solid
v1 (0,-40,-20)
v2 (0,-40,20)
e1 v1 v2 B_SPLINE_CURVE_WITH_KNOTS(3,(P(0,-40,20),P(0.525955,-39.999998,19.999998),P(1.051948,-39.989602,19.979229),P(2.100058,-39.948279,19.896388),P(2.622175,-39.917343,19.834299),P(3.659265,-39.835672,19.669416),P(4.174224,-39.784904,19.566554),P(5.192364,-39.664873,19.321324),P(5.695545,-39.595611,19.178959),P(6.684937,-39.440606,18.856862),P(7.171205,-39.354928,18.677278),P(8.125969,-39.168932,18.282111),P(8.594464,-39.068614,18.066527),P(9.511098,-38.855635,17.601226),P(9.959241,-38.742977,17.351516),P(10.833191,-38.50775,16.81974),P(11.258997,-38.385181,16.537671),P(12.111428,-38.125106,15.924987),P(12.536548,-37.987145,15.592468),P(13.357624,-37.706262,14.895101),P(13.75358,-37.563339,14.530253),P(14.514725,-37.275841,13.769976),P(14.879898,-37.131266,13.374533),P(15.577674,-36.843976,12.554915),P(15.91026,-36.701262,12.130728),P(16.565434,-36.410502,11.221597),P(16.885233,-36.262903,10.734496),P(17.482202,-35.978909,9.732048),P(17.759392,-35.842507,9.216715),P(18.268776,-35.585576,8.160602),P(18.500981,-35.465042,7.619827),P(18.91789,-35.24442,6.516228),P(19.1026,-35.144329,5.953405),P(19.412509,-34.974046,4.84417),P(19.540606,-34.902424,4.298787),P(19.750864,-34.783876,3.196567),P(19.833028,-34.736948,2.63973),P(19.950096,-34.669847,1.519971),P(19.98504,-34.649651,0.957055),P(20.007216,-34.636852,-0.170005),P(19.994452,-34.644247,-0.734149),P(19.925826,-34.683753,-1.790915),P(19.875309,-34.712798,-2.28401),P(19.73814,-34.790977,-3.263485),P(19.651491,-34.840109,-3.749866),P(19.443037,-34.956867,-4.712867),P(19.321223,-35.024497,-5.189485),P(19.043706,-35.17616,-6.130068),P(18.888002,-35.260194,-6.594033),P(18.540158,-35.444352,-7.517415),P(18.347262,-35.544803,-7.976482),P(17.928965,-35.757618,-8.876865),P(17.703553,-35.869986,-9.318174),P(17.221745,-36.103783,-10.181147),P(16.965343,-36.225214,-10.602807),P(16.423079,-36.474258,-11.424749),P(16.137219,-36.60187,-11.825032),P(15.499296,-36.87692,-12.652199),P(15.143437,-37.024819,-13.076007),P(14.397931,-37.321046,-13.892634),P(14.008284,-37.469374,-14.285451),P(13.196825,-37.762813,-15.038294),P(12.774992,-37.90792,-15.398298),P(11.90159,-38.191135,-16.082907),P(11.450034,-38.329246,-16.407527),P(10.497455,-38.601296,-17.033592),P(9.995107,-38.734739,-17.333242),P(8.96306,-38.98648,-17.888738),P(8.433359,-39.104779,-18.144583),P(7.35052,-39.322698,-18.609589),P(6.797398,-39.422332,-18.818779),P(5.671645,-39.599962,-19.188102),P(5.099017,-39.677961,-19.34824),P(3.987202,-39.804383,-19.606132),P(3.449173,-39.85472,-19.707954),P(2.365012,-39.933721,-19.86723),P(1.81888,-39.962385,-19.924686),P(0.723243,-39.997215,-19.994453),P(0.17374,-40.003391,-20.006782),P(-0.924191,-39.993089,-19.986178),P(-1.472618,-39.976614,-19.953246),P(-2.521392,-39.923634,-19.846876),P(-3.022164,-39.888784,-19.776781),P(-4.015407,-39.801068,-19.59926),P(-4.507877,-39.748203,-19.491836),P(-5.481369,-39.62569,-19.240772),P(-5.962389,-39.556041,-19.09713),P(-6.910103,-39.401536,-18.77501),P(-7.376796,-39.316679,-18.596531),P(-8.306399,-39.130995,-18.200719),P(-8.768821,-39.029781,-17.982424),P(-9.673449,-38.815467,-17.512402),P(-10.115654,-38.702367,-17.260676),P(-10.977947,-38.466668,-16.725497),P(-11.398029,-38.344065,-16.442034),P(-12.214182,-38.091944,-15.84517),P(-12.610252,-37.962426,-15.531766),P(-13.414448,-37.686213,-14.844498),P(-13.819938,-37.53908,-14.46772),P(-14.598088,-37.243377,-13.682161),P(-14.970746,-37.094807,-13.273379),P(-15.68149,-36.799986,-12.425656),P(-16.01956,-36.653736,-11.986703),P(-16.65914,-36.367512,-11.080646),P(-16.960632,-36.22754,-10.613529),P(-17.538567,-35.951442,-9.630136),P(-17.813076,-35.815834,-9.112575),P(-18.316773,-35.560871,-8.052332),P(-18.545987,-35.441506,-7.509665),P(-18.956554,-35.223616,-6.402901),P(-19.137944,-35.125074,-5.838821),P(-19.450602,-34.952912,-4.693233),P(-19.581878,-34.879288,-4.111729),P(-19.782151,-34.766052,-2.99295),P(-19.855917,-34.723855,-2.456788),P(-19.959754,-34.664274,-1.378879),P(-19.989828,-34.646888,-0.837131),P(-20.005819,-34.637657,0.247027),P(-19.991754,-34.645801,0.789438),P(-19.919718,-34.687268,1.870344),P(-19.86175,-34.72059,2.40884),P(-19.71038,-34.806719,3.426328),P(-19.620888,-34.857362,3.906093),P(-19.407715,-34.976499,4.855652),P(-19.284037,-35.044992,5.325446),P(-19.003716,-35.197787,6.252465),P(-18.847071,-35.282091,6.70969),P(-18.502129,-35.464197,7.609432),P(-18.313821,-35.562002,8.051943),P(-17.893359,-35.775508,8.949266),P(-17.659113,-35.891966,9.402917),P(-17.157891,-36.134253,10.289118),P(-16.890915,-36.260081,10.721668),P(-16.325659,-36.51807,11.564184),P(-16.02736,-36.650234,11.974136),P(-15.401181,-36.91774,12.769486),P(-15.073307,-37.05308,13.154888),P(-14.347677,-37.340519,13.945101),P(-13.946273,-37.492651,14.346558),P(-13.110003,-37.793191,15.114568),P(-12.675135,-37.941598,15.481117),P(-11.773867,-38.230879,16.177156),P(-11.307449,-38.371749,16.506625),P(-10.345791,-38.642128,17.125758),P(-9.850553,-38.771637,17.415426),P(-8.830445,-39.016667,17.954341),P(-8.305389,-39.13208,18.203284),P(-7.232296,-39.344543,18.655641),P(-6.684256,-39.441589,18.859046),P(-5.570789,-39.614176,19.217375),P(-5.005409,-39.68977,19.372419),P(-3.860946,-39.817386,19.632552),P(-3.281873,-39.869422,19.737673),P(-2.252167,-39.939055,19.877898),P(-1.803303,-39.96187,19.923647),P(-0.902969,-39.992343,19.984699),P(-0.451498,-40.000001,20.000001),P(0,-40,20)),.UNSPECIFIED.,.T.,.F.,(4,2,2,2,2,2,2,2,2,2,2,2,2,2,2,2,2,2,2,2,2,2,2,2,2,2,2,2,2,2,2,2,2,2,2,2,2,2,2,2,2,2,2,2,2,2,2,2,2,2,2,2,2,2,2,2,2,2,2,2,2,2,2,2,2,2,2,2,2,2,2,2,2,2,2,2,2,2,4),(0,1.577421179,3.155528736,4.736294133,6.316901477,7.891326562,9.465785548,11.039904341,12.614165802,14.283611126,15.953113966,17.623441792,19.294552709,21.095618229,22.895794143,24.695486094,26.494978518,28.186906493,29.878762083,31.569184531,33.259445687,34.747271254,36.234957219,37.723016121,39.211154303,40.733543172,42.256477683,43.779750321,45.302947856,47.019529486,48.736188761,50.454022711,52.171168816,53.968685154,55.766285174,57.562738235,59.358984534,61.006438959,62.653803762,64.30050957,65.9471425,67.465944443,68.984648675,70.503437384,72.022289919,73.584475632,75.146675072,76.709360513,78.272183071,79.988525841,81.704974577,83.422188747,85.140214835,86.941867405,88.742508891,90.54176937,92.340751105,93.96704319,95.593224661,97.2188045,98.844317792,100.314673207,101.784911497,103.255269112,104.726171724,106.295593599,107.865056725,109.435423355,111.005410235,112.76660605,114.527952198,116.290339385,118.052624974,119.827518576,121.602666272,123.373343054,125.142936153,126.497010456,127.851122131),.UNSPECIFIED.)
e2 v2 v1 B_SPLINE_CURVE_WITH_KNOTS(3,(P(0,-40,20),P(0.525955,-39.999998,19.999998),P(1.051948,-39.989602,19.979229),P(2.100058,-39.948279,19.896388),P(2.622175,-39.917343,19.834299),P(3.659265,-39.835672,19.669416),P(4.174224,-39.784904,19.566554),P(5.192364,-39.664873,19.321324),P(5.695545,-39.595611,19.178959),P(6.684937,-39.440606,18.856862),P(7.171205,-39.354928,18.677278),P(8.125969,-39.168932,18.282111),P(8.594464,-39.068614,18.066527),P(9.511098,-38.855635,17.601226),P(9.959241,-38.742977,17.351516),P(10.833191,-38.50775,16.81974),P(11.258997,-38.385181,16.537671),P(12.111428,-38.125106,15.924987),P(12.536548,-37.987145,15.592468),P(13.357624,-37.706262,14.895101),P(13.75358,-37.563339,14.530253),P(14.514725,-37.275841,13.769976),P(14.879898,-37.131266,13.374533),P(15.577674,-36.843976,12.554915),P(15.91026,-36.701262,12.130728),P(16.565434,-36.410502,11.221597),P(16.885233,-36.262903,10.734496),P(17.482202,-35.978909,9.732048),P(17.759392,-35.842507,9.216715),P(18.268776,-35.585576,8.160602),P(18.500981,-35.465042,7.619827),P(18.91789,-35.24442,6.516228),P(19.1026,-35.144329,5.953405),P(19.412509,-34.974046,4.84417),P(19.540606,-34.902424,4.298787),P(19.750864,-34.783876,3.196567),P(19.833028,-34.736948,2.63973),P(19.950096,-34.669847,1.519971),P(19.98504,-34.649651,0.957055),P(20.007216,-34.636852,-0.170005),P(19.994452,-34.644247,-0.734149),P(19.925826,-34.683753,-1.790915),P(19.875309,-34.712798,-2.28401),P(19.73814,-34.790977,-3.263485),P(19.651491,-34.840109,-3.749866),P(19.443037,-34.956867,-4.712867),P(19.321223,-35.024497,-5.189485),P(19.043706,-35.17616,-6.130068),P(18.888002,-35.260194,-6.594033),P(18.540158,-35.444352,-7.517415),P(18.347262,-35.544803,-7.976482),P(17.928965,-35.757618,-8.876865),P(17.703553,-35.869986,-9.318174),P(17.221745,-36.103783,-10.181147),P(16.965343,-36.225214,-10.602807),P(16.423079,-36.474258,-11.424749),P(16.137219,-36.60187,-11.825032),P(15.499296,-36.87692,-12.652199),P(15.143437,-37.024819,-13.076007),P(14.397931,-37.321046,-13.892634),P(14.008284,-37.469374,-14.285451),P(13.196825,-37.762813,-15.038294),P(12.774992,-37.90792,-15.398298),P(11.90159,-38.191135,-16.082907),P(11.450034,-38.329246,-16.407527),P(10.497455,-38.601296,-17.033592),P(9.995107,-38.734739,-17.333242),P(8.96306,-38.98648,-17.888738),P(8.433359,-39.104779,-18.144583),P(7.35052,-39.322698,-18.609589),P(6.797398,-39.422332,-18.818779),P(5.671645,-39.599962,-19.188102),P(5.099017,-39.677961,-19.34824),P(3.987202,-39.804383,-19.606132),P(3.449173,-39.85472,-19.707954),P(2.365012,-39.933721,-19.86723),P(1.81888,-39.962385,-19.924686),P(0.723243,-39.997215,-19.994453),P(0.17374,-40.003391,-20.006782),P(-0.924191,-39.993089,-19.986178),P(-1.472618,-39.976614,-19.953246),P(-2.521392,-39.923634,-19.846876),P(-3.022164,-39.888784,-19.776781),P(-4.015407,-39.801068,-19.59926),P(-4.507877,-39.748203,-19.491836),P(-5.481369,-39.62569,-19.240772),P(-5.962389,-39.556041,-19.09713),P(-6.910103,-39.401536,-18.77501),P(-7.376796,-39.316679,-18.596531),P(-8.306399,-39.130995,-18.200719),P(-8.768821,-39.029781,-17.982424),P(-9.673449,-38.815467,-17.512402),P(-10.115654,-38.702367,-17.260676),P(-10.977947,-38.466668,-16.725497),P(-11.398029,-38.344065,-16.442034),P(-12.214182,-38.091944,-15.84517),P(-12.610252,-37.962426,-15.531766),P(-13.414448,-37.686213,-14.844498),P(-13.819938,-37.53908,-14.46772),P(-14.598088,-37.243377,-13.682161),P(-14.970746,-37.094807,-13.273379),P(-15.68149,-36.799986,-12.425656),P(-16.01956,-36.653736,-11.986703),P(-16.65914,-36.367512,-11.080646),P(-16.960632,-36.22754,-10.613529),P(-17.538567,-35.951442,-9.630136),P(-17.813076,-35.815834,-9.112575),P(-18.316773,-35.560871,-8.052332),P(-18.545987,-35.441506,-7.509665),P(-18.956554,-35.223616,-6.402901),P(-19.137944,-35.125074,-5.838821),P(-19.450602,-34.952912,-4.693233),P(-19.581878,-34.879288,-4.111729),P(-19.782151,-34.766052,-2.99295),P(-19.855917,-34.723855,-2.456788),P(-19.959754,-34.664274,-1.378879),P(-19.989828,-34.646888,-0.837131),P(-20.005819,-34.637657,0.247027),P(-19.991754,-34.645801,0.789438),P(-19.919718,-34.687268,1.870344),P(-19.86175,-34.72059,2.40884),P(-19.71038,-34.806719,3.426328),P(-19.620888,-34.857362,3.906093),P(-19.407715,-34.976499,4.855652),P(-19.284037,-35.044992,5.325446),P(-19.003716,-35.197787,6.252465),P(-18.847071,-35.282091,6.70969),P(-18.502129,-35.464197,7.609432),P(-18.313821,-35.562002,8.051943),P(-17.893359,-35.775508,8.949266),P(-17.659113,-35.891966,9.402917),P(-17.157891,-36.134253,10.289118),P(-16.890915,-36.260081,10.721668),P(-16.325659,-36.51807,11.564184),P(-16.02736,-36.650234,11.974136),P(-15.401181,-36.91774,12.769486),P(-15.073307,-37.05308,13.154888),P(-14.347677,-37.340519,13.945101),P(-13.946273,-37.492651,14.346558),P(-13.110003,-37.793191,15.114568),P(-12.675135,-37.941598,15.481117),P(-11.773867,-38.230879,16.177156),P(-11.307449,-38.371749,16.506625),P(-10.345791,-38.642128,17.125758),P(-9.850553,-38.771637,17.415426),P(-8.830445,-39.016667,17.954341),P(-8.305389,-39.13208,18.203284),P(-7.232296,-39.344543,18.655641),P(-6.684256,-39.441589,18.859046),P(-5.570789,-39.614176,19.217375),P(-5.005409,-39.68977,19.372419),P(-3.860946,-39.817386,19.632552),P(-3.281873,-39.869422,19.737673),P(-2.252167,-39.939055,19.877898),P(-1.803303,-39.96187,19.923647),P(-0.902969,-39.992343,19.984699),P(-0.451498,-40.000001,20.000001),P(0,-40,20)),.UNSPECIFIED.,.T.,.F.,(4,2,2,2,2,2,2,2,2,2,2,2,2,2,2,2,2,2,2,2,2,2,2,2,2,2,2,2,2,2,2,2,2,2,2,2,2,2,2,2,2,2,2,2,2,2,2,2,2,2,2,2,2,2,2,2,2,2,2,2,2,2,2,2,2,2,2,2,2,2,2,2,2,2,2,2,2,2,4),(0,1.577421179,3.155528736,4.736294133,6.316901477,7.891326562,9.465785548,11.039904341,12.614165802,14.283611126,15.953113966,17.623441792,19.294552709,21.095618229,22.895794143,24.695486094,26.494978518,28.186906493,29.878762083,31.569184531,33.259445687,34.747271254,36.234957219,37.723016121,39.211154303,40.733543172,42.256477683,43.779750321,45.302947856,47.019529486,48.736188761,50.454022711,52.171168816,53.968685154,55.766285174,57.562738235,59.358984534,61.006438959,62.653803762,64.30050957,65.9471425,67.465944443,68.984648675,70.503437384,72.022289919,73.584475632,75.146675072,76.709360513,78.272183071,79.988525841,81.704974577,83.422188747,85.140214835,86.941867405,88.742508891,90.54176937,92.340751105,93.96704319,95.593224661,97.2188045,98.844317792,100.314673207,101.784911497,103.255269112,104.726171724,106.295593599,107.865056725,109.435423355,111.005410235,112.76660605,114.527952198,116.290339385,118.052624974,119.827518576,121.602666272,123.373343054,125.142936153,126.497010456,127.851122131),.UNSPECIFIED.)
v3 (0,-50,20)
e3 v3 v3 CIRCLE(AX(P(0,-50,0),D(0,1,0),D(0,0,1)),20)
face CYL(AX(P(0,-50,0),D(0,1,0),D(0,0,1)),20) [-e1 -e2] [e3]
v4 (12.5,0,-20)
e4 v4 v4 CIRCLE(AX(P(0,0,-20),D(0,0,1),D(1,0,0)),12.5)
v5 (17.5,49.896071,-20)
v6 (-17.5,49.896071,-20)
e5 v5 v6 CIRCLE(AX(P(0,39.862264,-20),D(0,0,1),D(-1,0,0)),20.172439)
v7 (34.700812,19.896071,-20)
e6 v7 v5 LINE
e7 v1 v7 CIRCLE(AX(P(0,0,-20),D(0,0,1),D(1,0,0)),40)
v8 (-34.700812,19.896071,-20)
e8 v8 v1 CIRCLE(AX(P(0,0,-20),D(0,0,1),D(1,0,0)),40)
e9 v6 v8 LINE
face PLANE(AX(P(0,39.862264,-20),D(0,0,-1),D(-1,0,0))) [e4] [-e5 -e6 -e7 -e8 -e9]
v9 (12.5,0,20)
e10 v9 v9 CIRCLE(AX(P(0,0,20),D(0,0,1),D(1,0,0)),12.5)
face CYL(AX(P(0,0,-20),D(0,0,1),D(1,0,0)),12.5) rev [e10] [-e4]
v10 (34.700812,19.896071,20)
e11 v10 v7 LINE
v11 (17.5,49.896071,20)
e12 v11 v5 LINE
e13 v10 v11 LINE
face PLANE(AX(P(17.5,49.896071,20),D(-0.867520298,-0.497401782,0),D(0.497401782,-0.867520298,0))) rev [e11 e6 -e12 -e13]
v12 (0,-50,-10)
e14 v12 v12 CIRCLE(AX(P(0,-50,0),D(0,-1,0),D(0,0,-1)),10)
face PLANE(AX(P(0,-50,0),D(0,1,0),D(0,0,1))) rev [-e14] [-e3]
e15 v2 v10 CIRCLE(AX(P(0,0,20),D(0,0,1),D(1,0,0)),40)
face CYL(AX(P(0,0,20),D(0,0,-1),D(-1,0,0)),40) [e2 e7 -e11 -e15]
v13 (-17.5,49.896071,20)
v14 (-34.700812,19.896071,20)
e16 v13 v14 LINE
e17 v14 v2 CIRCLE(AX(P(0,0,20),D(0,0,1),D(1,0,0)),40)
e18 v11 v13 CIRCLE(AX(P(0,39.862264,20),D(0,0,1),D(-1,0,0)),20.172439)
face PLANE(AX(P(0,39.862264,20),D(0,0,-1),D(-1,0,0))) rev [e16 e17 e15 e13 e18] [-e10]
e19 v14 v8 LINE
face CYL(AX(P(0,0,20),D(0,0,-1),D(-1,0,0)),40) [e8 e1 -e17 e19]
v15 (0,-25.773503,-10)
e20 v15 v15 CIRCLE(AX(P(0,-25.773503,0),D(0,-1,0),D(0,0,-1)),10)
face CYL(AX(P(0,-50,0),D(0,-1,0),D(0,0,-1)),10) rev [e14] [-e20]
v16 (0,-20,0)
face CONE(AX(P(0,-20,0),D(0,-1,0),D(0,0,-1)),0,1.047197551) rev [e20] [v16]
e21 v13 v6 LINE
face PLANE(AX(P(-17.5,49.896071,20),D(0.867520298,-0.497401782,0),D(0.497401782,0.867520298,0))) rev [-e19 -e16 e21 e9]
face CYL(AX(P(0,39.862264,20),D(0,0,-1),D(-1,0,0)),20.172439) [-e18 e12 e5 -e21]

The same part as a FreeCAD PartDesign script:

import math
import FreeCAD as App
import Part
import Sketcher
from FreeCAD import Vector
Q = App.Units.Quantity

doc = App.newDocument("Part")
body = doc.addObject("PartDesign::Body", "Body")

sketch1 = body.newObject("Sketcher::SketchObject", "Sketch")
sketch1.AttachmentSupport = (doc.getObject("XY_Plane"), [""])
sketch1.MapMode = "FlatFace"
sketch1.addGeometry(Part.LineSegment(Vector(-17.5, 49.896071, 0), Vector(-34.700812, 19.896071, 0)), False)
sketch1.addGeometry(Part.ArcOfCircle(Part.Circle(Vector(0, 0, 0), Vector(0, 0, 1), 40), math.radians(150.171748), math.radians(389.828252)), False)
sketch1.addGeometry(Part.LineSegment(Vector(34.700812, 19.896071, 0), Vector(17.5, 49.896071, 0)), False)
sketch1.addGeometry(Part.ArcOfCircle(Part.Circle(Vector(0, 39.862264, 0), Vector(0, 0, 1), 20.172439), math.radians(29.828252), math.radians(150.171748)), False)
sketch1.addConstraint(Sketcher.Constraint("Tangent", 0, 2, 1, 1))
sketch1.addConstraint(Sketcher.Constraint("Tangent", 1, 2, 2, 1))
sketch1.addConstraint(Sketcher.Constraint("Tangent", 2, 2, 3, 1))
sketch1.addConstraint(Sketcher.Constraint("Tangent", 3, 2, 0, 1))
sketch1.addConstraint(Sketcher.Constraint("Coincident", 1, 3, -1, 1))
sketch1.addConstraint(Sketcher.Constraint("PointOnObject", 3, 3, -2))
sketch1.addConstraint(Sketcher.Constraint("Radius", 1, 40.0))
sketch1.addConstraint(Sketcher.Constraint("DistanceY", 1, 2, 2, 2, 30.0))
sketch1.addConstraint(Sketcher.Constraint("DistanceX", 3, 2, 2, 2, 35.0))
pad1 = body.newObject("PartDesign::Pad", "Pad")
pad1.Profile = sketch1
pad1.Length = 40
pad1.Midplane = True

sketch2 = body.newObject("Sketcher::SketchObject", "Sketch001")
sketch2.AttachmentSupport = (doc.getObject("XZ_Plane"), [""])
sketch2.MapMode = "FlatFace"
sketch2.addGeometry(Part.Circle(Vector(0, 0, 0), Vector(0, 0, 1), 20), False)
sketch2.addConstraint(Sketcher.Constraint("Coincident", 0, 3, -1, 1))
sketch2.addConstraint(Sketcher.Constraint("Diameter", 0, 40.0))
pad2 = body.newObject("PartDesign::Pad", "Pad001")
pad2.Profile = sketch2
pad2.Length = 50

sketch3 = body.newObject("Sketcher::SketchObject", "Sketch002")
sketch3.AttachmentSupport = (doc.getObject("XY_Plane"), [""])
sketch3.MapMode = "FlatFace"
sketch3.AttachmentOffset = App.Placement(Vector(0, 0, 20), App.Rotation())
sketch3.addGeometry(Part.Circle(Vector(0, 0, 0), Vector(0, 0, 1), 12.5), False)
sketch3.addConstraint(Sketcher.Constraint("Coincident", 0, 3, -1, 1))
sketch3.addConstraint(Sketcher.Constraint("Diameter", 0, 25.0))
pocket1 = body.newObject("PartDesign::Pocket", "Pocket")
pocket1.Profile = sketch3
pocket1.Type = "ThroughAll"

sketch4 = body.newObject("Sketcher::SketchObject", "Sketch003")
sketch4.AttachmentSupport = (doc.getObject("XY_Plane"), [""])
sketch4.MapMode = "FlatFace"
sketch4.addGeometry(Part.LineSegment(Vector(0, -20, 0), Vector(0, -50, 0)), False)
sketch4.addGeometry(Part.LineSegment(Vector(0, -50, 0), Vector(10, -50, 0)), False)
sketch4.addGeometry(Part.LineSegment(Vector(10, -50, 0), Vector(10, -25.773503, 0)), False)
sketch4.addGeometry(Part.LineSegment(Vector(10, -25.773503, 0), Vector(0, -20, 0)), False)
sketch4.addConstraint(Sketcher.Constraint("Coincident", 0, 2, 1, 1))
sketch4.addConstraint(Sketcher.Constraint("Coincident", 1, 2, 2, 1))
sketch4.addConstraint(Sketcher.Constraint("Coincident", 2, 2, 3, 1))
sketch4.addConstraint(Sketcher.Constraint("Coincident", 3, 2, 0, 1))
sketch4.addConstraint(Sketcher.Constraint("Vertical", 0))
sketch4.addConstraint(Sketcher.Constraint("Horizontal", 1))
sketch4.addConstraint(Sketcher.Constraint("Vertical", 2))
sketch4.addConstraint(Sketcher.Constraint("PointOnObject", 0, 2, -2))
sketch4.addConstraint(Sketcher.Constraint("DistanceX", 1, 1, 1, 2, 10.0))
sketch4.addConstraint(Sketcher.Constraint("DistanceY", 0, 2, 0, 1, 30.0))
sketch4.addConstraint(Sketcher.Constraint("Angle", 3, Q("150 deg")))
sketch4.addConstraint(Sketcher.Constraint("DistanceY", 0, 2, -1, 1, 50.0))
groove = body.newObject("PartDesign::Groove", "Groove")
groove.Profile = sketch4
groove.ReferenceAxis = (sketch4, ["V_Axis"])
groove.Angle = 360

doc.recompute()
